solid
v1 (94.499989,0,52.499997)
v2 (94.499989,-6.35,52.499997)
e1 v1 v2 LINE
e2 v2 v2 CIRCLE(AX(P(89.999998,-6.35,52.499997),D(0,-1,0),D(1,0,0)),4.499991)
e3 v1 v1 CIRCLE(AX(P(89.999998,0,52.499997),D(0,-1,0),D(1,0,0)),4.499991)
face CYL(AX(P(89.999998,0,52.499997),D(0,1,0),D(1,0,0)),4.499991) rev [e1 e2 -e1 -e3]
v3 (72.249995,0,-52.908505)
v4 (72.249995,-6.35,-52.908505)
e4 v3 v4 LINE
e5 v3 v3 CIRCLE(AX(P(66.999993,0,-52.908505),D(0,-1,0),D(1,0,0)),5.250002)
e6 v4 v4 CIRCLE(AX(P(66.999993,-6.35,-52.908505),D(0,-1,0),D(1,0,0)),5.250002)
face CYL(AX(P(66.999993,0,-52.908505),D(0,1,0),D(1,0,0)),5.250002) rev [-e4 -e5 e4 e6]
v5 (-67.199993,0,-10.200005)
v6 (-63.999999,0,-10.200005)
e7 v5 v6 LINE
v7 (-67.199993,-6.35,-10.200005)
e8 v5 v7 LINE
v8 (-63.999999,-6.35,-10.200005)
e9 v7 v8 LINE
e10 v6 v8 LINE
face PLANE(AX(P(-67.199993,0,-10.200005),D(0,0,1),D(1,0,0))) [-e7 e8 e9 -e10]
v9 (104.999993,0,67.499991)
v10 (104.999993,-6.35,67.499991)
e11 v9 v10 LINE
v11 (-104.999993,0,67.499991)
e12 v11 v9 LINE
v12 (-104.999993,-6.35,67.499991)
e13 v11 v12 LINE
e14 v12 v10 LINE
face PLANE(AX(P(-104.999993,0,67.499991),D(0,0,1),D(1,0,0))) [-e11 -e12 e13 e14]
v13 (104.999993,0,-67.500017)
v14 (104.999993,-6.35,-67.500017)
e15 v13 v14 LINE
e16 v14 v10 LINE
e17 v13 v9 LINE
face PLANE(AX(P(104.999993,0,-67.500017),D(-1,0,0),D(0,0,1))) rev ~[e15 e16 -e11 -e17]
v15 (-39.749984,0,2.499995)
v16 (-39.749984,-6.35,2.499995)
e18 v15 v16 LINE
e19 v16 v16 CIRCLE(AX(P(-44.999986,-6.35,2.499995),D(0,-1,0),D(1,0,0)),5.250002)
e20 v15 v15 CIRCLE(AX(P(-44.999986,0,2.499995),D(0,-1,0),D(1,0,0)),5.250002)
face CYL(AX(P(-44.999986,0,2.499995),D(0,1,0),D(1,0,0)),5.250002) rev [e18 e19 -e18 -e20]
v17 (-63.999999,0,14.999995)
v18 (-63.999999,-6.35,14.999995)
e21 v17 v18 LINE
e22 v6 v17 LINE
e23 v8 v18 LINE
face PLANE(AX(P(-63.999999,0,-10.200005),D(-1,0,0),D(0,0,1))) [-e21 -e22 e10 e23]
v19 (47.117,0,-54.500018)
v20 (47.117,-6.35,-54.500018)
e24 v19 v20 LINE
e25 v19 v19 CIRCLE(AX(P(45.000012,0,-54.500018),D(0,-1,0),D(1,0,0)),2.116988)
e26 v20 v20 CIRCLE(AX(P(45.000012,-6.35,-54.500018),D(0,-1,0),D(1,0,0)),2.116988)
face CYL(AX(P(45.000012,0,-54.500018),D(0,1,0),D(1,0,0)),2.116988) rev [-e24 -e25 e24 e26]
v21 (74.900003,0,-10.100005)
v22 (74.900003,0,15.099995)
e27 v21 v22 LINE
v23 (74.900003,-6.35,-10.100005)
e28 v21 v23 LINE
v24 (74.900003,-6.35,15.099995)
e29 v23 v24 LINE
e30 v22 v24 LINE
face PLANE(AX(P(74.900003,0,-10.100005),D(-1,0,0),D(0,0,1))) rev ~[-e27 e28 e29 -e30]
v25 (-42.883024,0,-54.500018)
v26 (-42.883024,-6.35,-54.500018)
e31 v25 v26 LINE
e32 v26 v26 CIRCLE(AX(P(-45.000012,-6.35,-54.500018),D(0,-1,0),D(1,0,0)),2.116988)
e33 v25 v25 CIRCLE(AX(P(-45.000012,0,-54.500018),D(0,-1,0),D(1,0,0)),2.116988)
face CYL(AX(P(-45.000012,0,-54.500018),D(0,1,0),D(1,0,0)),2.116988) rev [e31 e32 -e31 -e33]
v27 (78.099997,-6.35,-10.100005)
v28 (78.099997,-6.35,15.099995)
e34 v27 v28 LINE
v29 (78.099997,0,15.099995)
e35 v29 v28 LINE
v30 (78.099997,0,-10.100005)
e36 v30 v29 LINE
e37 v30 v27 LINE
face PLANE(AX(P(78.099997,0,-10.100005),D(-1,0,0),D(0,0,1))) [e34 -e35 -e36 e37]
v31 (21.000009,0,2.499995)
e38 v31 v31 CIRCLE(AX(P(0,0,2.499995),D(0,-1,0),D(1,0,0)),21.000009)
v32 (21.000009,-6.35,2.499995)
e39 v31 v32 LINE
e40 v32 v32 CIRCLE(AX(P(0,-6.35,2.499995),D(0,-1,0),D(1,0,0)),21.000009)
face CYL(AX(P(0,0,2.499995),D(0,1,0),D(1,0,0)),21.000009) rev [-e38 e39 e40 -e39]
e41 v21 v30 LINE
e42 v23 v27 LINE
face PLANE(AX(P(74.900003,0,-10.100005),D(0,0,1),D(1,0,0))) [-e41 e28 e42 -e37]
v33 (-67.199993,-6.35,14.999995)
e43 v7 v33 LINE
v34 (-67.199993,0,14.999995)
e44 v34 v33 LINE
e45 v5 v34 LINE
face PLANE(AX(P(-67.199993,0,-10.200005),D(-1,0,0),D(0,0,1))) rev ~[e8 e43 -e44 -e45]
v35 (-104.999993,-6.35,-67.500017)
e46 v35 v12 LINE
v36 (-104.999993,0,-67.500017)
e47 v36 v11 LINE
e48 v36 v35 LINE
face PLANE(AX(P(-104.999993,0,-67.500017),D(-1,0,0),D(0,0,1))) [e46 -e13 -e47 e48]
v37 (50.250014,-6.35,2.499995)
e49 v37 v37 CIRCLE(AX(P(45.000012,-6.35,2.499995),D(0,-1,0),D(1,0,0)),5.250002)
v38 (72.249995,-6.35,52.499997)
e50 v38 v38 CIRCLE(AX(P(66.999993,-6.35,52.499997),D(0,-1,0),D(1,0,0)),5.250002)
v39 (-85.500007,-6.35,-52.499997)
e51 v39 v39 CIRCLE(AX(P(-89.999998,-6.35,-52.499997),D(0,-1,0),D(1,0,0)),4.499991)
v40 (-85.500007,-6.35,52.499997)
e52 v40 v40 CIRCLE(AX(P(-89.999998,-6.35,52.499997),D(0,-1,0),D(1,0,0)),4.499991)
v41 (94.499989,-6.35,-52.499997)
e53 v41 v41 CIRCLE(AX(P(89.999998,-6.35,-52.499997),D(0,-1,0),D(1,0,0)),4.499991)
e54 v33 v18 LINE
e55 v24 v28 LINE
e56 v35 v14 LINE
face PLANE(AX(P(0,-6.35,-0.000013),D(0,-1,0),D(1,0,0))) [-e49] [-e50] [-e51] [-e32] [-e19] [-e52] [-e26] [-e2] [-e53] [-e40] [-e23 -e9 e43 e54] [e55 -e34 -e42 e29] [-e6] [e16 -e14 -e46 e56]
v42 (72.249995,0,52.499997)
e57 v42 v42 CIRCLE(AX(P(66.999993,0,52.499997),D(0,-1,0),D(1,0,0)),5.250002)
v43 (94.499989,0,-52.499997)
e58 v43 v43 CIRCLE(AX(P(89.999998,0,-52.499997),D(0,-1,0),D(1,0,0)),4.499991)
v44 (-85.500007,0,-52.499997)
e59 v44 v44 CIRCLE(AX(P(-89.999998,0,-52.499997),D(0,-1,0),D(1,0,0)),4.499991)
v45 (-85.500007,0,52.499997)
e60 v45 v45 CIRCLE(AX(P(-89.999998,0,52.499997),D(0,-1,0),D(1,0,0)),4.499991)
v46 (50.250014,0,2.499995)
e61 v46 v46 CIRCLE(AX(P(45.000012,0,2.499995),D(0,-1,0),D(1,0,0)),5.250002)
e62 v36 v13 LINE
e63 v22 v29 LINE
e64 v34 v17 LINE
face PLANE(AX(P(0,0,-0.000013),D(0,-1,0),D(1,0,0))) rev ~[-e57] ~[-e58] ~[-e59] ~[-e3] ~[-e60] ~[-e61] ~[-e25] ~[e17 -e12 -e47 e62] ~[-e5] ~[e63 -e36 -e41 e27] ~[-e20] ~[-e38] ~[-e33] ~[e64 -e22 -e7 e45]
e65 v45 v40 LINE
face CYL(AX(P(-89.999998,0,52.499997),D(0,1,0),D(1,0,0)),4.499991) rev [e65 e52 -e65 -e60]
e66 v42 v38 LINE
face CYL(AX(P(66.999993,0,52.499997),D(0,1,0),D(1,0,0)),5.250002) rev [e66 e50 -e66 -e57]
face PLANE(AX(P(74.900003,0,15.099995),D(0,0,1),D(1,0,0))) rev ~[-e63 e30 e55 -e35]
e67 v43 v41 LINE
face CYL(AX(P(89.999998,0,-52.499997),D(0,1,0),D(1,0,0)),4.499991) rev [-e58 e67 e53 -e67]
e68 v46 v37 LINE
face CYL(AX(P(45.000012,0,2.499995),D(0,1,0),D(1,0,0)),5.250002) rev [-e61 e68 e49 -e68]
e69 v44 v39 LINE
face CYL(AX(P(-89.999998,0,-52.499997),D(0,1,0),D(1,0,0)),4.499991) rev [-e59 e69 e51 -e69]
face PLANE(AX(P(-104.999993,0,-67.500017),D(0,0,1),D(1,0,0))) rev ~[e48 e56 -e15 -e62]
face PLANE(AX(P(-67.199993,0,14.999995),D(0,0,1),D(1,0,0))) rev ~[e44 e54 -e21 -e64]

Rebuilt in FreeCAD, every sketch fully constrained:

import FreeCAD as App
import Part
import Sketcher
from FreeCAD import Vector
Q = App.Units.Quantity


def add_polygon(sketch, points):
    """Adds a closed chain of lines whose ends are joined by coincident constraints."""
    first, n = sketch.GeometryCount, len(points)
    for a, b in zip(points, points[1:] + points[:1]):
        sketch.addGeometry(Part.LineSegment(App.Vector(*a, 0), App.Vector(*b, 0)), False)
    for i in range(n):
        sketch.addConstraint(Sketcher.Constraint("Coincident", first + i, 2, first + (i + 1) % n, 1))

doc = App.newDocument("Part")
body = doc.addObject("PartDesign::Body", "Body")

# Sketch on XZ plane
sketch1 = doc.addObject("Sketcher::SketchObject", "Sketch")
body.addObject(sketch1)
sketch1.AttachmentSupport = (doc.XZ_Plane, [""])
sketch1.MapMode = "FlatFace"
add_polygon(sketch1, [(-105, 67.5), (-105, -67.5), (105, -67.5), (105, 67.5)])  # lines 0-3
sketch1.addGeometry(Part.Circle(Vector(-90, -52.5, 0), Vector(0, 0, 1), 4.5), False)  # 4
sketch1.addGeometry(Part.Circle(Vector(-45, -54.5, 0), Vector(0, 0, 1), 2.1), False)  # 5
sketch1.addGeometry(Part.Circle(Vector(45, -54.5, 0), Vector(0, 0, 1), 2.1), False)  # 6
sketch1.addGeometry(Part.Circle(Vector(67, -52.9, 0), Vector(0, 0, 1), 5.3), False)  # 7
sketch1.addGeometry(Part.Circle(Vector(90, -52.5, 0), Vector(0, 0, 1), 4.5), False)  # 8
add_polygon(sketch1, [(-64, -10.2), (-67.2, -10.2), (-67.2, 15), (-64, 15)])  # lines 9-12
sketch1.addGeometry(Part.Circle(Vector(-45, 2.5, 0), Vector(0, 0, 1), 5.3), False)  # 13
sketch1.addGeometry(Part.Circle(Vector(0, 2.5, 0), Vector(0, 0, 1), 21), False)  # 14
sketch1.addGeometry(Part.Circle(Vector(-90, 52.5, 0), Vector(0, 0, 1), 4.5), False)  # 15
sketch1.addGeometry(Part.Circle(Vector(45, 2.5, 0), Vector(0, 0, 1), 5.3), False)  # 16
add_polygon(sketch1, [(78.1, -10.1), (74.9, -10.1), (74.9, 15.1), (78.1, 15.1)])  # lines 17-20
sketch1.addGeometry(Part.Circle(Vector(67, 52.5, 0), Vector(0, 0, 1), 5.3), False)  # 21
sketch1.addGeometry(Part.Circle(Vector(90, 52.5, 0), Vector(0, 0, 1), 4.5), False)  # 22
sketch1.addConstraint(Sketcher.Constraint("Vertical", 0))
sketch1.addConstraint(Sketcher.Constraint("Horizontal", 1))
sketch1.addConstraint(Sketcher.Constraint("Vertical", 2))
sketch1.addConstraint(Sketcher.Constraint("Horizontal", 3))
sketch1.addConstraint(Sketcher.Constraint("Horizontal", 9))
sketch1.addConstraint(Sketcher.Constraint("Vertical", 10))
sketch1.addConstraint(Sketcher.Constraint("Horizontal", 11))
sketch1.addConstraint(Sketcher.Constraint("Vertical", 12))
sketch1.addConstraint(Sketcher.Constraint("Horizontal", 17))
sketch1.addConstraint(Sketcher.Constraint("Vertical", 18))
sketch1.addConstraint(Sketcher.Constraint("Horizontal", 19))
sketch1.addConstraint(Sketcher.Constraint("Vertical", 20))
sketch1.addConstraint(Sketcher.Constraint("Equal", 5, 6))
sketch1.addConstraint(Sketcher.Constraint("Equal", 4, 8))
sketch1.addConstraint(Sketcher.Constraint("Equal", 7, 13))
sketch1.addConstraint(Sketcher.Constraint("Equal", 8, 15))
sketch1.addConstraint(Sketcher.Constraint("Equal", 13, 16))
sketch1.addConstraint(Sketcher.Constraint("Equal", 16, 21))
sketch1.addConstraint(Sketcher.Constraint("Equal", 15, 22))
sketch1.addConstraint(Sketcher.Constraint("Symmetric", 8, 3, 15, 3, -1, 1))
sketch1.addConstraint(Sketcher.Constraint("Symmetric", 4, 3, 22, 3, -1, 1))
sketch1.addConstraint(Sketcher.Constraint("Symmetric", 5, 3, 6, 3, -2))
sketch1.addConstraint(Sketcher.Constraint("Symmetric", 4, 3, 8, 3, -2))
sketch1.addConstraint(Sketcher.Constraint("PointOnObject", 14, 3, -2))
sketch1.addConstraint(Sketcher.Constraint("Horizontal", 13, 3, 14, 3))
sketch1.addConstraint(Sketcher.Constraint("Horizontal", 14, 3, 16, 3))
sketch1.addConstraint(Sketcher.Constraint("Horizontal", 15, 3, 21, 3))
sketch1.addConstraint(Sketcher.Constraint("Vertical", 6, 3, 16, 3))
sketch1.addConstraint(Sketcher.Constraint("Vertical", 7, 3, 21, 3))
sketch1.addConstraint(Sketcher.Constraint("Equal", 11, 17))
sketch1.addConstraint(Sketcher.Constraint("Equal", 12, 18))
sketch1.addConstraint(Sketcher.Constraint("DistanceY", 10, 1, 10, 2, Q("25.2 mm")))
sketch1.addConstraint(Sketcher.Constraint("DistanceX", 4, 3, -1, 1, Q("89.999998 mm")))
sketch1.addConstraint(Sketcher.Constraint("DistanceX", 11, 2, -1, 1, Q("63.999999 mm")))
sketch1.addConstraint(Sketcher.Constraint("DistanceX", 13, 3, 6, 3, Q("89.999998 mm")))
sketch1.addConstraint(Sketcher.Constraint("DistanceY", 0, 2, 5, 3, Q("13 mm")))
sketch1.addConstraint(Sketcher.Constraint("DistanceX", 7, 3, 1, 2, Q("38 mm")))
sketch1.addConstraint(Sketcher.Constraint("DistanceY", 9, 2, 13, 3, Q("12.7 mm")))
sketch1.addConstraint(Sketcher.Constraint("DistanceY", 9, 2, 15, 3, Q("62.700002 mm")))
sketch1.addConstraint(Sketcher.Constraint("DistanceX", 3, 2, 10, 2, Q("37.8 mm")))
sketch1.addConstraint(Sketcher.Constraint("DistanceY", 17, 2, 16, 3, Q("12.6 mm")))
sketch1.addConstraint(Sketcher.Constraint("DistanceX", 19, 2, 22, 3, Q("11.900002 mm")))
sketch1.addConstraint(Sketcher.Constraint("Diameter", 4, Q("8.999982 mm")))
sketch1.addConstraint(Sketcher.Constraint("Diameter", 5, Q("4.233976 mm")))
sketch1.addConstraint(Sketcher.Constraint("Diameter", 7, Q("10.500004 mm")))
sketch1.addConstraint(Sketcher.Constraint("Diameter", 14, Q("42.000018 mm")))
sketch1.addConstraint(Sketcher.Constraint("DistanceY", 0, 2, 0, 1, Q("135.000009 mm")))
sketch1.addConstraint(Sketcher.Constraint("DistanceY", 7, 3, 13, 3, Q("55.4085 mm")))
sketch1.addConstraint(Sketcher.Constraint("DistanceX", 1, 1, 1, 2, Q("209.999986 mm")))
sketch1.addConstraint(Sketcher.Constraint("DistanceX", 9, 2, 9, 1, Q("3.199994 mm")))
sketch1.addConstraint(Sketcher.Constraint("DistanceX", 5, 3, -1, 1, Q("45.000012 mm")))
sketch1.addConstraint(Sketcher.Constraint("DistanceY", -1, 1, 2, 2, Q("67.499991 mm")))
sketch1.addConstraint(Sketcher.Constraint("DistanceY", 5, 3, 4, 3, Q("2.000021 mm")))
pad1 = doc.addObject("PartDesign::Pad", "Pad")
body.addObject(pad1)
pad1.Profile = sketch1
pad1.Length = 6.35

doc.recompute()
